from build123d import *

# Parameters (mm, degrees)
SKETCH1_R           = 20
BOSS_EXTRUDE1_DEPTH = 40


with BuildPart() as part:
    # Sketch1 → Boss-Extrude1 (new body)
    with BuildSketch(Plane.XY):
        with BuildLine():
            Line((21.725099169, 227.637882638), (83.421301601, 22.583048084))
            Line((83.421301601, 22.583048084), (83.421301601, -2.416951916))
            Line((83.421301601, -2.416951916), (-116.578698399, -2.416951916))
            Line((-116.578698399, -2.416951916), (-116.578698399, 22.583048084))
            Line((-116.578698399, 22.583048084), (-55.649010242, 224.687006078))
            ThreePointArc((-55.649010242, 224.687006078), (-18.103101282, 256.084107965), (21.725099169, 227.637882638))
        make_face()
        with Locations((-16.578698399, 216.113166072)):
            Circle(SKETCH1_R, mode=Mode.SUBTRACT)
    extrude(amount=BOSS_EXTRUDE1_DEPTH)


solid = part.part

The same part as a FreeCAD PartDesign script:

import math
import FreeCAD as App
import Part
import Sketcher

V = App.Vector

doc = App.newDocument("Part")
body = doc.addObject("PartDesign::Body", "Body")

sketch1 = body.newObject("Sketcher::SketchObject", "Sketch")
sketch1.AttachmentSupport = (doc.getObject("XY_Plane"), [""])
sketch1.MapMode = "FlatFace"
sketch1.addGeometry(Part.LineSegment(V(83.421302, 22.583048, 0), V(21.725099, 227.637883, 0)), False)
sketch1.addGeometry(Part.ArcOfCircle(Part.Circle(V(-16.578698, 216.113166, 0), V(0, 0, 1), 40), math.radians(16.745312), math.radians(167.622839)), False)
sketch1.addGeometry(Part.LineSegment(V(-55.64901, 224.687006, 0), V(-116.578698, 22.583048, 0)), False)
sketch1.addGeometry(Part.LineSegment(V(-116.578698, 22.583048, 0), V(-116.578698, -2.416952, 0)), False)
sketch1.addGeometry(Part.LineSegment(V(-116.578698, -2.416952, 0), V(83.421302, -2.416952, 0)), False)
sketch1.addGeometry(Part.LineSegment(V(83.421302, -2.416952, 0), V(83.421302, 22.583048, 0)), False)
sketch1.addGeometry(Part.Circle(V(-16.578698, 216.113166, 0), V(0, 0, 1), 20), False)
sketch1.addConstraint(Sketcher.Constraint("Coincident", 0, 2, 1, 1))
sketch1.addConstraint(Sketcher.Constraint("Coincident", 1, 2, 2, 1))
sketch1.addConstraint(Sketcher.Constraint("Coincident", 2, 2, 3, 1))
sketch1.addConstraint(Sketcher.Constraint("Coincident", 3, 2, 4, 1))
sketch1.addConstraint(Sketcher.Constraint("Coincident", 4, 2, 5, 1))
sketch1.addConstraint(Sketcher.Constraint("Coincident", 5, 2, 0, 1))
sketch1.addConstraint(Sketcher.Constraint("Vertical", 3))
sketch1.addConstraint(Sketcher.Constraint("Horizontal", 4))
sketch1.addConstraint(Sketcher.Constraint("Vertical", 5))
sketch1.addConstraint(Sketcher.Constraint("Coincident", 6, 3, 1, 3))
sketch1.addConstraint(Sketcher.Constraint("Diameter", 6, 40.0))
sketch1.addConstraint(Sketcher.Constraint("Radius", 1, 40.0))
sketch1.addConstraint(Sketcher.Constraint("DistanceX", 4, 1, 4, 2, 200.0))
sketch1.addConstraint(Sketcher.Constraint("DistanceY", 3, 2, 3, 1, 25.0))
sketch1.addConstraint(Sketcher.Constraint("DistanceY", 5, 1, 5, 2, 25.0))
sketch1.addConstraint(Sketcher.Constraint("DistanceX", 2, 2, 1, 3, 100.0))
sketch1.addConstraint(Sketcher.Constraint("DistanceX", 1, 3, -1, 1, 16.578698))
sketch1.addConstraint(Sketcher.Constraint("DistanceX", -1, 1, 0, 2, 21.725099))
sketch1.addConstraint(Sketcher.Constraint("DistanceX", 1, 2, -1, 1, 55.64901))
sketch1.addConstraint(Sketcher.Constraint("DistanceY", -1, 1, 2, 2, 22.583048))
sketch1.addConstraint(Sketcher.Constraint("Distance", 0, 214.135253))
pad1 = body.newObject("PartDesign::Pad", "Pad")
pad1.Profile = sketch1
pad1.Length = 40

doc.recompute()
